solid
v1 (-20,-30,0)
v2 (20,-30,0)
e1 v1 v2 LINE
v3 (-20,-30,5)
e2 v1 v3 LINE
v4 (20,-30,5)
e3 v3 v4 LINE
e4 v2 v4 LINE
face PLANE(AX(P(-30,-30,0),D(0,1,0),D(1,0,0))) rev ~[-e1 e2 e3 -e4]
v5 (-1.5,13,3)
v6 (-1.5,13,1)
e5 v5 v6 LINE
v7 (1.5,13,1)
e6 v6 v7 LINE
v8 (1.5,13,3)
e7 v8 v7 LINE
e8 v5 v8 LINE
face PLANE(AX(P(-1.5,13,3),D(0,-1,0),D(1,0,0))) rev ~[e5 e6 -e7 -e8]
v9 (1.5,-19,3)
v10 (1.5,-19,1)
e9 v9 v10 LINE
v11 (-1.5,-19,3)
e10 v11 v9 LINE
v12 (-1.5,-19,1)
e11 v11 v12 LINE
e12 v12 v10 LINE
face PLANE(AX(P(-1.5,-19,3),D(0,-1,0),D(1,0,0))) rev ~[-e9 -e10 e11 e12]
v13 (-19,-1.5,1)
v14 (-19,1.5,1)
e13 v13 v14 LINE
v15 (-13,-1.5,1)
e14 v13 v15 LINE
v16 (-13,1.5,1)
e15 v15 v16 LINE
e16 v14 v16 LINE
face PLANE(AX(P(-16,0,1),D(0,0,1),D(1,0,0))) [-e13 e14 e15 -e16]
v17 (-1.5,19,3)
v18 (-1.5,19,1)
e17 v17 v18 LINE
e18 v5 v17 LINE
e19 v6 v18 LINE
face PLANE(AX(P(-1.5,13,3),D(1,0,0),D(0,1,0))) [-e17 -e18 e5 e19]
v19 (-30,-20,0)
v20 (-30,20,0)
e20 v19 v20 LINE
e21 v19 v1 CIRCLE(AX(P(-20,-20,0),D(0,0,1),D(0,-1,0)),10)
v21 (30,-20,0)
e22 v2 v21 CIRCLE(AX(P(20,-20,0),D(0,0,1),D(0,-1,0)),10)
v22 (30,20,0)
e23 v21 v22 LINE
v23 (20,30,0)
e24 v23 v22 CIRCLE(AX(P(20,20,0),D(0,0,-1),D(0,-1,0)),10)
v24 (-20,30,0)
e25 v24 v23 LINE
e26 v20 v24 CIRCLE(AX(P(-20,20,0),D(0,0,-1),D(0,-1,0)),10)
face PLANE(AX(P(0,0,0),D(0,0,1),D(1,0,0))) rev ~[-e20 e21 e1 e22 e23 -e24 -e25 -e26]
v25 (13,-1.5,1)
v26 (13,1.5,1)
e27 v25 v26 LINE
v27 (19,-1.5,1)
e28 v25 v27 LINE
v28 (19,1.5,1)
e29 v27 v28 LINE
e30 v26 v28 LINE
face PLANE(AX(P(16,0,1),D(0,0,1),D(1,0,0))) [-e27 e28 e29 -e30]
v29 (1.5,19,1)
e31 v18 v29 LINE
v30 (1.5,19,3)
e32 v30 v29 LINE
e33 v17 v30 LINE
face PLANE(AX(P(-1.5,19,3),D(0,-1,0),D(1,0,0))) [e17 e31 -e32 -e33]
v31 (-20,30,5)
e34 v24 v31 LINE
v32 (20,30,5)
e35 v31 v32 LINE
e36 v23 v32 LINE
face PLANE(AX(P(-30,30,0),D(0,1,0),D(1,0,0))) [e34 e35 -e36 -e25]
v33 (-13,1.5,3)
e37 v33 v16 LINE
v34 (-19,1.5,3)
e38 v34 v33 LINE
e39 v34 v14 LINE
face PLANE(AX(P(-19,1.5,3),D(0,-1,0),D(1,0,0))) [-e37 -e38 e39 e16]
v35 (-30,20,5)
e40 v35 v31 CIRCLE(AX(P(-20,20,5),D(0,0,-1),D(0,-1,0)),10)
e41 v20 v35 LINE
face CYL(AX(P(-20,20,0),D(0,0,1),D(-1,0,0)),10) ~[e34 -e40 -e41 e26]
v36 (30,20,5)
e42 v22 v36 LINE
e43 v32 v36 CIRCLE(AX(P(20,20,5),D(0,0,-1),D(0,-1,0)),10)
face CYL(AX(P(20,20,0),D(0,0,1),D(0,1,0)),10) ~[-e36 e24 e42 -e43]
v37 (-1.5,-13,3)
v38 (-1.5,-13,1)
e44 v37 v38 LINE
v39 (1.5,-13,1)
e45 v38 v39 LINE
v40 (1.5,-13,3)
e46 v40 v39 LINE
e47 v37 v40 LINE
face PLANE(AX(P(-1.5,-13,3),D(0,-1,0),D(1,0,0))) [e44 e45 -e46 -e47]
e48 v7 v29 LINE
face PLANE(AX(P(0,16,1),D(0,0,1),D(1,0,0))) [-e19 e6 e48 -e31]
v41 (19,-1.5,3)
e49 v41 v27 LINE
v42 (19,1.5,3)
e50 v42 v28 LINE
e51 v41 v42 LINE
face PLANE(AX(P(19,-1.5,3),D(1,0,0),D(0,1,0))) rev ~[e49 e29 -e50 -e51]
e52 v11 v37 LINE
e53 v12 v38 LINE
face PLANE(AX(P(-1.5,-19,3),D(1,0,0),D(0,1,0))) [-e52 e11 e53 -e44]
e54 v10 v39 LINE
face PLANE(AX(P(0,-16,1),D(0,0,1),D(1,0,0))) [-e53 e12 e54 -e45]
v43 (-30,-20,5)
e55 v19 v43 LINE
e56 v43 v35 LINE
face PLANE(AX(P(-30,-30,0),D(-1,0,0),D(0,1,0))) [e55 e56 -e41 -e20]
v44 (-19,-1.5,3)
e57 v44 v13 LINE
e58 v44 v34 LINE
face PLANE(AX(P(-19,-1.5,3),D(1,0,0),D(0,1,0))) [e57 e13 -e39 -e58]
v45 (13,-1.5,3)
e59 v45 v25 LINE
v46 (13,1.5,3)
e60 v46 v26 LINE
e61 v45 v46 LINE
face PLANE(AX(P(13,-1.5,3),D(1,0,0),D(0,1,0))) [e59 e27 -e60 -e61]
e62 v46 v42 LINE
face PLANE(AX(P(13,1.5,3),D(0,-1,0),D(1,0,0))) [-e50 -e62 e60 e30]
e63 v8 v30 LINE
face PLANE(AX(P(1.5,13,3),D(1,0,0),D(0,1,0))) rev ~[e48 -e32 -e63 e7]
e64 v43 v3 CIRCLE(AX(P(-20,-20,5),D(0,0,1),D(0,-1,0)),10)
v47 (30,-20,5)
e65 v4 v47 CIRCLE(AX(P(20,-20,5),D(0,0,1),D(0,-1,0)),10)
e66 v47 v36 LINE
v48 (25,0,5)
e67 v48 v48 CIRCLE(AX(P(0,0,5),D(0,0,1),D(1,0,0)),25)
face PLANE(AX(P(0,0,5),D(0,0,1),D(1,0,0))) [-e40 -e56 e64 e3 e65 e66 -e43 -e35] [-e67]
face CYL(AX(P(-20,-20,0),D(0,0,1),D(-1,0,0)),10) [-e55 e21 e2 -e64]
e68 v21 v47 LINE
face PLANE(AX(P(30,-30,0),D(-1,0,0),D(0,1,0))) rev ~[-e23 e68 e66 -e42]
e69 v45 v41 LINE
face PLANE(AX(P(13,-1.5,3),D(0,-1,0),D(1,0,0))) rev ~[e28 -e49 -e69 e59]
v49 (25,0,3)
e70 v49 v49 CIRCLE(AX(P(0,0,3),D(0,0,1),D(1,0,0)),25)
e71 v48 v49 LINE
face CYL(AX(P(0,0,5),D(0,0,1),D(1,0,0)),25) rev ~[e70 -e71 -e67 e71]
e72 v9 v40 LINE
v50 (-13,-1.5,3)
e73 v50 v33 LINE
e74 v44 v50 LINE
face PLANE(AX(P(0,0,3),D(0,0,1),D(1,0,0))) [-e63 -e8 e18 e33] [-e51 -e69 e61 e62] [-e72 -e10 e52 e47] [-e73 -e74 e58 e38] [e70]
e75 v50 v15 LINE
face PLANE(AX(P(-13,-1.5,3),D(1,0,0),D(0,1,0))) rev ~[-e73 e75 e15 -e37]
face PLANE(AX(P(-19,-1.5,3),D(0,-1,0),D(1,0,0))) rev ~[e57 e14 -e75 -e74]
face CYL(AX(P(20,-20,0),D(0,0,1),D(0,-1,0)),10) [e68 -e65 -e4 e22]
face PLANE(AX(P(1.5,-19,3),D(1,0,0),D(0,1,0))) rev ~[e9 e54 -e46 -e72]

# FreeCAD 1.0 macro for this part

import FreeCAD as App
import Part
import Sketcher
Q = App.Units.Quantity


def edges_at(feature, points):
    """Names of the edges that pass closest to the given points."""
    edges = feature.Shape.Edges
    near = lambda p: min(range(len(edges)), key=lambda i: edges[i].distToShape(Part.Vertex(*p))[0])
    return sorted({f"Edge{near(p) + 1}" for p in points})


def add_polygon(sketch, points):
    """Adds a closed chain of lines whose ends are joined by coincident constraints."""
    first, n = sketch.GeometryCount, len(points)
    for a, b in zip(points, points[1:] + points[:1]):
        sketch.addGeometry(Part.LineSegment(App.Vector(*a, 0), App.Vector(*b, 0)), False)
    for i in range(n):
        sketch.addConstraint(Sketcher.Constraint("Coincident", first + i, 2, first + (i + 1) % n, 1))

doc = App.newDocument("Part")
body = doc.addObject("PartDesign::Body", "Body")

# Sketch on XY plane
sketch1 = body.newObject("Sketcher::SketchObject", "Sketch")
sketch1.AttachmentSupport = (doc.getObject("XY_Plane"), [""])
sketch1.MapMode = "FlatFace"
add_polygon(sketch1, [(-30, 30), (-30, -30), (30, -30), (30, 30)])  # lines 0-3
sketch1.addConstraint([
    Sketcher.Constraint("Vertical", 0),
    Sketcher.Constraint("Horizontal", 1),
    Sketcher.Constraint("Vertical", 2),
    Sketcher.Constraint("Horizontal", 3),
    Sketcher.Constraint("Symmetric", 0, 2, 2, 2, -1, 1),
    Sketcher.Constraint("Equal", 3, 0),
    Sketcher.Constraint("DistanceX", 1, 1, 1, 2, Q("60 mm")),
])
pad1 = body.newObject("PartDesign::Pad", "Pad")
pad1.Profile = sketch1
pad1.Length = 5

# Sketch on XY plane
sketch2 = body.newObject("Sketcher::SketchObject", "Sketch001")
sketch2.AttachmentSupport = (doc.getObject("XY_Plane"), [""])
sketch2.MapMode = "FlatFace"
sketch2.AttachmentOffset = App.Placement(App.Vector(0, 0, 5), App.Rotation())
sketch2.addGeometry(Part.Circle(App.Vector(0, 0, 0), App.Vector(0, 0, 1), 25), False)
sketch2.addConstraint([
    Sketcher.Constraint("Coincident", 0, 3, -1, 1),
    Sketcher.Constraint("Diameter", 0, Q("50 mm")),
])
pocket1 = body.newObject("PartDesign::Pocket", "Pocket")
pocket1.Profile = sketch2
pocket1.Length = 2
doc.recompute()

fillet = body.newObject("PartDesign::Fillet", "Fillet")
fillet.Base = (pocket1, edges_at(pocket1, [(-30, -30, 2.5)]))
fillet.Radius = 10
doc.recompute()

fillet2 = body.newObject("PartDesign::Fillet", "Fillet001")
fillet2.Base = (fillet, edges_at(fillet, [(30, -30, 2.5), (30, 30, 2.5), (-30, 30, 2.5)]))
fillet2.Radius = 10

# Sketch on XY plane
sketch3 = body.newObject("Sketcher::SketchObject", "Sketch002")
sketch3.AttachmentSupport = (doc.getObject("XY_Plane"), [""])
sketch3.MapMode = "FlatFace"
sketch3.AttachmentOffset = App.Placement(App.Vector(0, 0, 3), App.Rotation())
add_polygon(sketch3, [(-19, 1.5), (-19, -1.5), (-13, -1.5), (-13, 1.5)])  # lines 0-3
add_polygon(sketch3, [(-1.5, 19), (-1.5, 13), (1.5, 13), (1.5, 19)])  # lines 4-7
add_polygon(sketch3, [(13, 1.5), (13, -1.5), (19, -1.5), (19, 1.5)])  # lines 8-11
add_polygon(sketch3, [(-1.5, -13), (-1.5, -19), (1.5, -19), (1.5, -13)])  # lines 12-15
sketch3.addConstraint([
    Sketcher.Constraint("Vertical", 0),
    Sketcher.Constraint("Horizontal", 1),
    Sketcher.Constraint("Vertical", 2),
    Sketcher.Constraint("Horizontal", 3),
    Sketcher.Constraint("Vertical", 4),
    Sketcher.Constraint("Horizontal", 5),
    Sketcher.Constraint("Vertical", 6),
    Sketcher.Constraint("Horizontal", 7),
    Sketcher.Constraint("Vertical", 8),
    Sketcher.Constraint("Horizontal", 9),
    Sketcher.Constraint("Vertical", 10),
    Sketcher.Constraint("Horizontal", 11),
    Sketcher.Constraint("Vertical", 12),
    Sketcher.Constraint("Horizontal", 13),
    Sketcher.Constraint("Vertical", 14),
    Sketcher.Constraint("Horizontal", 15),
    Sketcher.Constraint("Symmetric", 2, 2, 8, 2, -1, 1),
    Sketcher.Constraint("Symmetric", 0, 2, 10, 2, -1, 1),
    Sketcher.Constraint("Symmetric", 6, 2, 12, 2, -1, 1),
    Sketcher.Constraint("Symmetric", 4, 2, 14, 2, -1, 1),
    Sketcher.Constraint("Horizontal", 1, 2, 8, 2),
    Sketcher.Constraint("Vertical", 7, 2, 12, 2),
    Sketcher.Constraint("Equal", 15, 0),
    Sketcher.Constraint("Equal", 11, 4),
    Sketcher.Constraint("DistanceX", 1, 1, 1, 2, Q("6 mm")),
    Sketcher.Constraint("DistanceX", 5, 1, 5, 2, Q("3 mm")),
    Sketcher.Constraint("DistanceX", 0, 2, -1, 1, Q("19 mm")),
    Sketcher.Constraint("DistanceY", -1, 1, 4, 2, Q("13 mm")),
])
pocket2 = body.newObject("PartDesign::Pocket", "Pocket001")
pocket2.Profile = sketch3
pocket2.Length = 2

doc.recompute()
